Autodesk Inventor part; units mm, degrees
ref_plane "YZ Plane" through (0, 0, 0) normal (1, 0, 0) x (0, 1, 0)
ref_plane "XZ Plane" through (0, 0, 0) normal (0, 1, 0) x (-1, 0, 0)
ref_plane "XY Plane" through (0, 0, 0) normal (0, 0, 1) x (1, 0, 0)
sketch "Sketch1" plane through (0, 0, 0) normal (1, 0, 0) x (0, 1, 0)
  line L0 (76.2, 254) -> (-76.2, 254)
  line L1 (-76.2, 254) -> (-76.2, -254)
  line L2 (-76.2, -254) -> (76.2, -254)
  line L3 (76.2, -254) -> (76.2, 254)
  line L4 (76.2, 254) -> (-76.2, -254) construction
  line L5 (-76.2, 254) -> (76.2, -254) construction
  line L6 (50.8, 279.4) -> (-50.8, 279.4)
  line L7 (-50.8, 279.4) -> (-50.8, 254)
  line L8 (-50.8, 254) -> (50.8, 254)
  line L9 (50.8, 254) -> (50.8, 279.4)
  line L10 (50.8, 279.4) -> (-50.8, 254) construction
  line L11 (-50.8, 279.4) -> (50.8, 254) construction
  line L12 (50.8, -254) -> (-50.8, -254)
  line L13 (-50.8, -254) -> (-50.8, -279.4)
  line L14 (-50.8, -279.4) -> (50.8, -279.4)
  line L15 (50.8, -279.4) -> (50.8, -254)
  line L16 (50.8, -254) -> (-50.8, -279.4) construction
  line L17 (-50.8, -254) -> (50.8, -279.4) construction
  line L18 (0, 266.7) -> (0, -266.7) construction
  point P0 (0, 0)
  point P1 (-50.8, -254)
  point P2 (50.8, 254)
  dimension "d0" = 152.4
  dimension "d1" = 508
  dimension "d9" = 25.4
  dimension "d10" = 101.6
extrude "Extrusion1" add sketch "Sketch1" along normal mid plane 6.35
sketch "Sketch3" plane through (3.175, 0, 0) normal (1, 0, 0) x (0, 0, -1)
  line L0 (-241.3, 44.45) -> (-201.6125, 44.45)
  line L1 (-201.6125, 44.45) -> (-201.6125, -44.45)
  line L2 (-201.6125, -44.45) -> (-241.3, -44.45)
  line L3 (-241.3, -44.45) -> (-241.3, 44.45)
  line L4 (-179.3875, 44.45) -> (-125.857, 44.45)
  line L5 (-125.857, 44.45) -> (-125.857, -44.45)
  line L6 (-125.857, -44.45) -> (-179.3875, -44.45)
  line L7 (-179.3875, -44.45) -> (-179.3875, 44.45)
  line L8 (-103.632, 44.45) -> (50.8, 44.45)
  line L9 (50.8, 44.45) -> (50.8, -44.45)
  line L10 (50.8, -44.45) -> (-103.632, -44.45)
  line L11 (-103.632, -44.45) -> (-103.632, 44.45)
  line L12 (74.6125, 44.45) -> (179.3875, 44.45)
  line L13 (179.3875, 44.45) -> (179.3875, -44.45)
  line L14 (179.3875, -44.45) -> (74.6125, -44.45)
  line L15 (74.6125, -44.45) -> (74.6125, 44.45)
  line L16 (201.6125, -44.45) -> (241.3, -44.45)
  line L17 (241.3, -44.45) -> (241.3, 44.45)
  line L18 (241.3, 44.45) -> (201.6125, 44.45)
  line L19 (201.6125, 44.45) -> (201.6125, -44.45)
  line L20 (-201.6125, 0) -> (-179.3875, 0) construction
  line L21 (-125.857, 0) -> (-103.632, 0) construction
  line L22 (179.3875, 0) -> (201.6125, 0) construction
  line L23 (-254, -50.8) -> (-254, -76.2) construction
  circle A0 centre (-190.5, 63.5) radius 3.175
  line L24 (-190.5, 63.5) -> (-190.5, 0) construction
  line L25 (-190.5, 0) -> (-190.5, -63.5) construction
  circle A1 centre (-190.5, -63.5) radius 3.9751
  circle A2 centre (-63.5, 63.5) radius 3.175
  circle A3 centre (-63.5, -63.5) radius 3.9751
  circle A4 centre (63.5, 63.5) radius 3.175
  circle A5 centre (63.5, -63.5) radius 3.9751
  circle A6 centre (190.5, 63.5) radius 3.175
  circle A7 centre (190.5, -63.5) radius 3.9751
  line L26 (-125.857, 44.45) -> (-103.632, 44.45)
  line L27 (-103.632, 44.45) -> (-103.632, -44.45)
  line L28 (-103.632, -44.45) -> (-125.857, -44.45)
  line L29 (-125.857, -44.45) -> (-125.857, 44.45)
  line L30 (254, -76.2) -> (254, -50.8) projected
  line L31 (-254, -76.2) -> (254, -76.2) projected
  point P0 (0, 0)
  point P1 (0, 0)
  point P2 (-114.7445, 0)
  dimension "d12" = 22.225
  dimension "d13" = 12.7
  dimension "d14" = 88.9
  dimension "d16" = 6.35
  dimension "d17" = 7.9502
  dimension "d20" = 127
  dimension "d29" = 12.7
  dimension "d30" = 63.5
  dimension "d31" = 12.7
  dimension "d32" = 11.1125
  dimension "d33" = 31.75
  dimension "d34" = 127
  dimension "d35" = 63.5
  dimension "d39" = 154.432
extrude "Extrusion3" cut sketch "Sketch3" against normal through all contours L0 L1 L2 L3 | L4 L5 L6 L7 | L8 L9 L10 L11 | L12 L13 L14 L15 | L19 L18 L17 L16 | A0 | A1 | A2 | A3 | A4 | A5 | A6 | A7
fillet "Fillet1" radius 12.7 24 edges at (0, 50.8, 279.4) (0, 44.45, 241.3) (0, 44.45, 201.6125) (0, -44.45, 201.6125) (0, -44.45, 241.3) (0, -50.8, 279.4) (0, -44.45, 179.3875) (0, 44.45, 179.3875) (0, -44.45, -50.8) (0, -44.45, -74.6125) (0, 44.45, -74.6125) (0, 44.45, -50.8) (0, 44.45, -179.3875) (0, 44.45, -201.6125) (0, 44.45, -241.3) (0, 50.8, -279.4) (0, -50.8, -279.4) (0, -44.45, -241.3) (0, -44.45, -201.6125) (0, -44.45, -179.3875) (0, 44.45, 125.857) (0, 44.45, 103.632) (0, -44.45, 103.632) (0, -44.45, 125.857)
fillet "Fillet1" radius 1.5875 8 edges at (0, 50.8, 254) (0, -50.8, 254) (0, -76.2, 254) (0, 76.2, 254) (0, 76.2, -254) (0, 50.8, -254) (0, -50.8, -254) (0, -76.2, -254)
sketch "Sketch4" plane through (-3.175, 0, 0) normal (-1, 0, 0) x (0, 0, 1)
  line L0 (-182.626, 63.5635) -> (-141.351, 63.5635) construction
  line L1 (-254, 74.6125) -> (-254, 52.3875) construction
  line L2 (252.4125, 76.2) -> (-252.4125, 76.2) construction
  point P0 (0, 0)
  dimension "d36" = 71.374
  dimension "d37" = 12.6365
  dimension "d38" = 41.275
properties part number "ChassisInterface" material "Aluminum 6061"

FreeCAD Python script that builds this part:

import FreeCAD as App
import Part
import Sketcher
from FreeCAD import Vector
Q = App.Units.Quantity


def edges_at(feature, points):
    """Names of the edges that pass closest to the given points."""
    edges = feature.Shape.Edges
    near = lambda p: min(range(len(edges)), key=lambda i: edges[i].distToShape(Part.Vertex(*p))[0])
    return sorted({f"Edge{near(p) + 1}" for p in points})

doc = App.newDocument("Part")
body = doc.addObject("PartDesign::Body", "Body")

# Sketch on YZ plane
sketch1 = body.newObject("Sketcher::SketchObject", "Sketch")
sketch1.AttachmentSupport = (doc.getObject("YZ_Plane"), [""])
sketch1.MapMode = "FlatFace"
sketch1.addGeometry(Part.LineSegment(Vector(76, -254, 0), Vector(76, 254, 0)), False)
sketch1.addGeometry(Part.LineSegment(Vector(76, 254, 0), Vector(51, 254, 0)), False)
sketch1.addGeometry(Part.LineSegment(Vector(51, 254, 0), Vector(51, 279, 0)), False)
sketch1.addGeometry(Part.LineSegment(Vector(51, 279, 0), Vector(-51, 279, 0)), False)
sketch1.addGeometry(Part.LineSegment(Vector(-51, 279, 0), Vector(-51, 254, 0)), False)
sketch1.addGeometry(Part.LineSegment(Vector(-51, 254, 0), Vector(-76, 254, 0)), False)
sketch1.addGeometry(Part.LineSegment(Vector(-76, 254, 0), Vector(-76, -254, 0)), False)
sketch1.addGeometry(Part.LineSegment(Vector(-76, -254, 0), Vector(-51, -254, 0)), False)
sketch1.addGeometry(Part.LineSegment(Vector(-51, -254, 0), Vector(-51, -279, 0)), False)
sketch1.addGeometry(Part.LineSegment(Vector(-51, -279, 0), Vector(51, -279, 0)), False)
sketch1.addGeometry(Part.LineSegment(Vector(51, -279, 0), Vector(51, -254, 0)), False)
sketch1.addGeometry(Part.LineSegment(Vector(51, -254, 0), Vector(76, -254, 0)), False)
sketch1.addConstraint(Sketcher.Constraint("Coincident", 0, 2, 1, 1))
sketch1.addConstraint(Sketcher.Constraint("Coincident", 1, 2, 2, 1))
sketch1.addConstraint(Sketcher.Constraint("Coincident", 2, 2, 3, 1))
sketch1.addConstraint(Sketcher.Constraint("Coincident", 3, 2, 4, 1))
sketch1.addConstraint(Sketcher.Constraint("Coincident", 4, 2, 5, 1))
sketch1.addConstraint(Sketcher.Constraint("Coincident", 5, 2, 6, 1))
sketch1.addConstraint(Sketcher.Constraint("Coincident", 6, 2, 7, 1))
sketch1.addConstraint(Sketcher.Constraint("Coincident", 7, 2, 8, 1))
sketch1.addConstraint(Sketcher.Constraint("Coincident", 8, 2, 9, 1))
sketch1.addConstraint(Sketcher.Constraint("Coincident", 9, 2, 10, 1))
sketch1.addConstraint(Sketcher.Constraint("Coincident", 10, 2, 11, 1))
sketch1.addConstraint(Sketcher.Constraint("Coincident", 11, 2, 0, 1))
sketch1.addConstraint(Sketcher.Constraint("Vertical", 0))
sketch1.addConstraint(Sketcher.Constraint("Horizontal", 1))
sketch1.addConstraint(Sketcher.Constraint("Vertical", 2))
sketch1.addConstraint(Sketcher.Constraint("Horizontal", 3))
sketch1.addConstraint(Sketcher.Constraint("Vertical", 4))
sketch1.addConstraint(Sketcher.Constraint("Horizontal", 5))
sketch1.addConstraint(Sketcher.Constraint("Vertical", 6))
sketch1.addConstraint(Sketcher.Constraint("Horizontal", 7))
sketch1.addConstraint(Sketcher.Constraint("Vertical", 8))
sketch1.addConstraint(Sketcher.Constraint("Horizontal", 9))
sketch1.addConstraint(Sketcher.Constraint("Vertical", 10))
sketch1.addConstraint(Sketcher.Constraint("Horizontal", 11))
sketch1.addConstraint(Sketcher.Constraint("Symmetric", 0, 2, 6, 2, -1, 1))
sketch1.addConstraint(Sketcher.Constraint("Symmetric", 2, 2, 8, 2, -1, 1))
sketch1.addConstraint(Sketcher.Constraint("Symmetric", 4, 2, 10, 2, -1, 1))
sketch1.addConstraint(Sketcher.Constraint("Symmetric", 1, 2, 4, 2, -2))
sketch1.addConstraint(Sketcher.Constraint("Equal", 11, 2))
sketch1.addConstraint(Sketcher.Constraint("DistanceX", 1, 2, 1, 1, Q("1 in")))
sketch1.addConstraint(Sketcher.Constraint("DistanceX", 3, 2, 3, 1, Q("4 in")))
sketch1.addConstraint(Sketcher.Constraint("DistanceY", 0, 1, 0, 2, Q("20 in")))
pad1 = body.newObject("PartDesign::Pad", "Pad")
pad1.Profile = sketch1
pad1.Length = Q("0.25 in")
pad1.Midplane = True

# Sketch on YZ plane
sketch2 = body.newObject("Sketcher::SketchObject", "Sketch001")
sketch2.AttachmentSupport = (doc.getObject("YZ_Plane"), [""])
sketch2.MapMode = "FlatFace"
sketch2.AttachmentOffset = App.Placement(Vector(0, 0, 0.125 * 25.4), App.Rotation())
sketch2.addGeometry(Part.LineSegment(Vector(44.5, 201.6, 0), Vector(44.5, 241.3, 0)), False)
sketch2.addGeometry(Part.LineSegment(Vector(44.5, 241.3, 0), Vector(-44.5, 241.3, 0)), False)
sketch2.addGeometry(Part.LineSegment(Vector(-44.5, 241.3, 0), Vector(-44.5, 201.6, 0)), False)
sketch2.addGeometry(Part.LineSegment(Vector(-44.5, 201.6, 0), Vector(44.5, 201.6, 0)), False)
sketch2.addGeometry(Part.LineSegment(Vector(44.5, 125.9, 0), Vector(44.5, 179.4, 0)), False)
sketch2.addGeometry(Part.LineSegment(Vector(44.5, 179.4, 0), Vector(-44.5, 179.4, 0)), False)
sketch2.addGeometry(Part.LineSegment(Vector(-44.5, 179.4, 0), Vector(-44.5, 125.9, 0)), False)
sketch2.addGeometry(Part.LineSegment(Vector(-44.5, 125.9, 0), Vector(44.5, 125.9, 0)), False)
sketch2.addGeometry(Part.LineSegment(Vector(44.5, -50.8, 0), Vector(44.5, 103.6, 0)), False)
sketch2.addGeometry(Part.LineSegment(Vector(44.5, 103.6, 0), Vector(-44.5, 103.6, 0)), False)
sketch2.addGeometry(Part.LineSegment(Vector(-44.5, 103.6, 0), Vector(-44.5, -50.8, 0)), False)
sketch2.addGeometry(Part.LineSegment(Vector(-44.5, -50.8, 0), Vector(44.5, -50.8, 0)), False)
sketch2.addGeometry(Part.LineSegment(Vector(44.5, -179.4, 0), Vector(44.5, -74.6, 0)), False)
sketch2.addGeometry(Part.LineSegment(Vector(44.5, -74.6, 0), Vector(-44.5, -74.6, 0)), False)
sketch2.addGeometry(Part.LineSegment(Vector(-44.5, -74.6, 0), Vector(-44.5, -179.4, 0)), False)
sketch2.addGeometry(Part.LineSegment(Vector(-44.5, -179.4, 0), Vector(44.5, -179.4, 0)), False)
sketch2.addGeometry(Part.LineSegment(Vector(44.5, -201.6, 0), Vector(-44.5, -201.6, 0)), False)
sketch2.addGeometry(Part.LineSegment(Vector(-44.5, -201.6, 0), Vector(-44.5, -241.3, 0)), False)
sketch2.addGeometry(Part.LineSegment(Vector(-44.5, -241.3, 0), Vector(44.5, -241.3, 0)), False)
sketch2.addGeometry(Part.LineSegment(Vector(44.5, -241.3, 0), Vector(44.5, -201.6, 0)), False)
sketch2.addGeometry(Part.Circle(Vector(63.5, 190.5, 0), Vector(0, 0, 1), 3.2), False)
sketch2.addGeometry(Part.Circle(Vector(-63.5, 190.5, 0), Vector(0, 0, 1), 4), False)
sketch2.addGeometry(Part.Circle(Vector(63.5, 63.5, 0), Vector(0, 0, 1), 3.2), False)
sketch2.addGeometry(Part.Circle(Vector(-63.5, 63.5, 0), Vector(0, 0, 1), 4), False)
sketch2.addGeometry(Part.Circle(Vector(63.5, -63.5, 0), Vector(0, 0, 1), 3.2), False)
sketch2.addGeometry(Part.Circle(Vector(-63.5, -63.5, 0), Vector(0, 0, 1), 4), False)
sketch2.addGeometry(Part.Circle(Vector(63.5, -190.5, 0), Vector(0, 0, 1), 3.2), False)
sketch2.addGeometry(Part.Circle(Vector(-63.5, -190.5, 0), Vector(0, 0, 1), 4), False)
sketch2.addConstraint(Sketcher.Constraint("Coincident", 0, 2, 1, 1))
sketch2.addConstraint(Sketcher.Constraint("Coincident", 1, 2, 2, 1))
sketch2.addConstraint(Sketcher.Constraint("Coincident", 2, 2, 3, 1))
sketch2.addConstraint(Sketcher.Constraint("Coincident", 3, 2, 0, 1))
sketch2.addConstraint(Sketcher.Constraint("Coincident", 4, 2, 5, 1))
sketch2.addConstraint(Sketcher.Constraint("Coincident", 5, 2, 6, 1))
sketch2.addConstraint(Sketcher.Constraint("Coincident", 6, 2, 7, 1))
sketch2.addConstraint(Sketcher.Constraint("Coincident", 7, 2, 4, 1))
sketch2.addConstraint(Sketcher.Constraint("Coincident", 8, 2, 9, 1))
sketch2.addConstraint(Sketcher.Constraint("Coincident", 9, 2, 10, 1))
sketch2.addConstraint(Sketcher.Constraint("Coincident", 10, 2, 11, 1))
sketch2.addConstraint(Sketcher.Constraint("Coincident", 11, 2, 8, 1))
sketch2.addConstraint(Sketcher.Constraint("Coincident", 12, 2, 13, 1))
sketch2.addConstraint(Sketcher.Constraint("Coincident", 13, 2, 14, 1))
sketch2.addConstraint(Sketcher.Constraint("Coincident", 14, 2, 15, 1))
sketch2.addConstraint(Sketcher.Constraint("Coincident", 15, 2, 12, 1))
sketch2.addConstraint(Sketcher.Constraint("Coincident", 16, 2, 17, 1))
sketch2.addConstraint(Sketcher.Constraint("Coincident", 17, 2, 18, 1))
sketch2.addConstraint(Sketcher.Constraint("Coincident", 18, 2, 19, 1))
sketch2.addConstraint(Sketcher.Constraint("Coincident", 19, 2, 16, 1))
sketch2.addConstraint(Sketcher.Constraint("Vertical", 0))
sketch2.addConstraint(Sketcher.Constraint("Horizontal", 1))
sketch2.addConstraint(Sketcher.Constraint("Vertical", 2))
sketch2.addConstraint(Sketcher.Constraint("Horizontal", 3))
sketch2.addConstraint(Sketcher.Constraint("Vertical", 4))
sketch2.addConstraint(Sketcher.Constraint("Horizontal", 5))
sketch2.addConstraint(Sketcher.Constraint("Vertical", 6))
sketch2.addConstraint(Sketcher.Constraint("Horizontal", 7))
sketch2.addConstraint(Sketcher.Constraint("Vertical", 8))
sketch2.addConstraint(Sketcher.Constraint("Horizontal", 9))
sketch2.addConstraint(Sketcher.Constraint("Vertical", 10))
sketch2.addConstraint(Sketcher.Constraint("Horizontal", 11))
sketch2.addConstraint(Sketcher.Constraint("Vertical", 12))
sketch2.addConstraint(Sketcher.Constraint("Horizontal", 13))
sketch2.addConstraint(Sketcher.Constraint("Vertical", 14))
sketch2.addConstraint(Sketcher.Constraint("Horizontal", 15))
sketch2.addConstraint(Sketcher.Constraint("Horizontal", 16))
sketch2.addConstraint(Sketcher.Constraint("Vertical", 17))
sketch2.addConstraint(Sketcher.Constraint("Horizontal", 18))
sketch2.addConstraint(Sketcher.Constraint("Vertical", 19))
sketch2.addConstraint(Sketcher.Constraint("Equal", 20, 22))
sketch2.addConstraint(Sketcher.Constraint("Equal", 21, 23))
sketch2.addConstraint(Sketcher.Constraint("Equal", 22, 24))
sketch2.addConstraint(Sketcher.Constraint("Equal", 23, 25))
sketch2.addConstraint(Sketcher.Constraint("Equal", 24, 26))
sketch2.addConstraint(Sketcher.Constraint("Equal", 25, 27))
sketch2.addConstraint(Sketcher.Constraint("Symmetric", 23, 3, 24, 3, -1, 1))
sketch2.addConstraint(Sketcher.Constraint("Symmetric", 22, 3, 25, 3, -1, 1))
sketch2.addConstraint(Sketcher.Constraint("Symmetric", 21, 3, 26, 3, -1, 1))
sketch2.addConstraint(Sketcher.Constraint("Symmetric", 20, 3, 27, 3, -1, 1))
sketch2.addConstraint(Sketcher.Constraint("Symmetric", 4, 2, 14, 2, -1, 1))
sketch2.addConstraint(Sketcher.Constraint("Symmetric", 3, 2, 16, 2, -1, 1))
sketch2.addConstraint(Sketcher.Constraint("Symmetric", 1, 2, 18, 2, -1, 1))
sketch2.addConstraint(Sketcher.Constraint("Symmetric", 20, 3, 21, 3, -2))
sketch2.addConstraint(Sketcher.Constraint("Symmetric", 22, 3, 23, 3, -2))
sketch2.addConstraint(Sketcher.Constraint("Vertical", 20, 3, 22, 3))
sketch2.addConstraint(Sketcher.Constraint("Vertical", 3, 2, 4, 2))
sketch2.addConstraint(Sketcher.Constraint("Vertical", 2, 2, 5, 2))
sketch2.addConstraint(Sketcher.Constraint("Vertical", 7, 2, 8, 2))
sketch2.addConstraint(Sketcher.Constraint("Vertical", 6, 2, 9, 2))
sketch2.addConstraint(Sketcher.Constraint("Vertical", 11, 2, 12, 2))
sketch2.addConstraint(Sketcher.Constraint("Vertical", 10, 2, 13, 2))
sketch2.addConstraint(Sketcher.Constraint("Diameter", 20, Q("0.25 in")))
sketch2.addConstraint(Sketcher.Constraint("Diameter", 21, Q("0.313 in")))
sketch2.addConstraint(Sketcher.Constraint("DistanceX", 1, 2, 1, 1, Q("3.5 in")))
sketch2.addConstraint(Sketcher.Constraint("DistanceX", 21, 3, 20, 3, Q("5 in")))
sketch2.addConstraint(Sketcher.Constraint("DistanceY", 22, 3, 20, 3, Q("5 in")))
sketch2.addConstraint(Sketcher.Constraint("DistanceY", 24, 3, 22, 3, Q("5 in")))
sketch2.addConstraint(Sketcher.Constraint("DistanceY", 16, 2, 13, 2, Q("5 in")))
sketch2.addConstraint(Sketcher.Constraint("DistanceY", 8, 1, 8, 2, Q("6.08 in")))
sketch2.addConstraint(Sketcher.Constraint("DistanceY", 25, 3, 10, 2, Q("0.5 in")))
sketch2.addConstraint(Sketcher.Constraint("DistanceY", 20, 3, 0, 2, Q("2 in")))
sketch2.addConstraint(Sketcher.Constraint("DistanceY", 21, 3, 2, 2, Q("0.4375 in")))
sketch2.addConstraint(Sketcher.Constraint("DistanceY", 4, 2, 20, 3, Q("0.4375 in")))
sketch2.addConstraint(Sketcher.Constraint("DistanceY", 8, 2, 7, 2, Q("0.875 in")))
pocket1 = body.newObject("PartDesign::Pocket", "Pocket")
pocket1.Profile = sketch2
pocket1.Type = "ThroughAll"
doc.recompute()

fillet = body.newObject("PartDesign::Fillet", "Fillet")
fillet.Base = (pocket1, edges_at(pocket1, [
    (0, 50.8, 279.4),
    (0, 44.45, 241.3),
    (0, 44.45, 201.613),
    (0, -44.45, 201.613),
    (0, -44.45, 241.3),
    (0, -50.8, 279.4),
    (0, -44.45, 179.387),
    (0, 44.45, 179.387),
    (0, -44.45, -50.8),
    (0, -44.45, -74.612),
    (0, 44.45, -74.612),
    (0, 44.45, -50.8),
    (0, 44.45, -179.387),
    (0, 44.45, -201.613),
    (0, 44.45, -241.3),
    (0, 50.8, -279.4),
    (0, -50.8, -279.4),
    (0, -44.45, -241.3),
    (0, -44.45, -201.613),
    (0, -44.45, -179.387),
    (0, 44.45, 125.857),
    (0, 44.45, 103.632),
    (0, -44.45, 103.632),
    (0, -44.45, 125.857),
]))
fillet.Radius = Q("0.5 in")
doc.recompute()

fillet2 = body.newObject("PartDesign::Fillet", "Fillet001")
fillet2.Base = (fillet, edges_at(fillet, [
    (0, 50.8, 254),
    (0, -50.8, 254),
    (0, -76.2, 254),
    (0, 76.2, 254),
    (0, 76.2, -254),
    (0, 50.8, -254),
    (0, -50.8, -254),
    (0, -76.2, -254),
]))
fillet2.Radius = Q("0.0625 in")

doc.recompute()
